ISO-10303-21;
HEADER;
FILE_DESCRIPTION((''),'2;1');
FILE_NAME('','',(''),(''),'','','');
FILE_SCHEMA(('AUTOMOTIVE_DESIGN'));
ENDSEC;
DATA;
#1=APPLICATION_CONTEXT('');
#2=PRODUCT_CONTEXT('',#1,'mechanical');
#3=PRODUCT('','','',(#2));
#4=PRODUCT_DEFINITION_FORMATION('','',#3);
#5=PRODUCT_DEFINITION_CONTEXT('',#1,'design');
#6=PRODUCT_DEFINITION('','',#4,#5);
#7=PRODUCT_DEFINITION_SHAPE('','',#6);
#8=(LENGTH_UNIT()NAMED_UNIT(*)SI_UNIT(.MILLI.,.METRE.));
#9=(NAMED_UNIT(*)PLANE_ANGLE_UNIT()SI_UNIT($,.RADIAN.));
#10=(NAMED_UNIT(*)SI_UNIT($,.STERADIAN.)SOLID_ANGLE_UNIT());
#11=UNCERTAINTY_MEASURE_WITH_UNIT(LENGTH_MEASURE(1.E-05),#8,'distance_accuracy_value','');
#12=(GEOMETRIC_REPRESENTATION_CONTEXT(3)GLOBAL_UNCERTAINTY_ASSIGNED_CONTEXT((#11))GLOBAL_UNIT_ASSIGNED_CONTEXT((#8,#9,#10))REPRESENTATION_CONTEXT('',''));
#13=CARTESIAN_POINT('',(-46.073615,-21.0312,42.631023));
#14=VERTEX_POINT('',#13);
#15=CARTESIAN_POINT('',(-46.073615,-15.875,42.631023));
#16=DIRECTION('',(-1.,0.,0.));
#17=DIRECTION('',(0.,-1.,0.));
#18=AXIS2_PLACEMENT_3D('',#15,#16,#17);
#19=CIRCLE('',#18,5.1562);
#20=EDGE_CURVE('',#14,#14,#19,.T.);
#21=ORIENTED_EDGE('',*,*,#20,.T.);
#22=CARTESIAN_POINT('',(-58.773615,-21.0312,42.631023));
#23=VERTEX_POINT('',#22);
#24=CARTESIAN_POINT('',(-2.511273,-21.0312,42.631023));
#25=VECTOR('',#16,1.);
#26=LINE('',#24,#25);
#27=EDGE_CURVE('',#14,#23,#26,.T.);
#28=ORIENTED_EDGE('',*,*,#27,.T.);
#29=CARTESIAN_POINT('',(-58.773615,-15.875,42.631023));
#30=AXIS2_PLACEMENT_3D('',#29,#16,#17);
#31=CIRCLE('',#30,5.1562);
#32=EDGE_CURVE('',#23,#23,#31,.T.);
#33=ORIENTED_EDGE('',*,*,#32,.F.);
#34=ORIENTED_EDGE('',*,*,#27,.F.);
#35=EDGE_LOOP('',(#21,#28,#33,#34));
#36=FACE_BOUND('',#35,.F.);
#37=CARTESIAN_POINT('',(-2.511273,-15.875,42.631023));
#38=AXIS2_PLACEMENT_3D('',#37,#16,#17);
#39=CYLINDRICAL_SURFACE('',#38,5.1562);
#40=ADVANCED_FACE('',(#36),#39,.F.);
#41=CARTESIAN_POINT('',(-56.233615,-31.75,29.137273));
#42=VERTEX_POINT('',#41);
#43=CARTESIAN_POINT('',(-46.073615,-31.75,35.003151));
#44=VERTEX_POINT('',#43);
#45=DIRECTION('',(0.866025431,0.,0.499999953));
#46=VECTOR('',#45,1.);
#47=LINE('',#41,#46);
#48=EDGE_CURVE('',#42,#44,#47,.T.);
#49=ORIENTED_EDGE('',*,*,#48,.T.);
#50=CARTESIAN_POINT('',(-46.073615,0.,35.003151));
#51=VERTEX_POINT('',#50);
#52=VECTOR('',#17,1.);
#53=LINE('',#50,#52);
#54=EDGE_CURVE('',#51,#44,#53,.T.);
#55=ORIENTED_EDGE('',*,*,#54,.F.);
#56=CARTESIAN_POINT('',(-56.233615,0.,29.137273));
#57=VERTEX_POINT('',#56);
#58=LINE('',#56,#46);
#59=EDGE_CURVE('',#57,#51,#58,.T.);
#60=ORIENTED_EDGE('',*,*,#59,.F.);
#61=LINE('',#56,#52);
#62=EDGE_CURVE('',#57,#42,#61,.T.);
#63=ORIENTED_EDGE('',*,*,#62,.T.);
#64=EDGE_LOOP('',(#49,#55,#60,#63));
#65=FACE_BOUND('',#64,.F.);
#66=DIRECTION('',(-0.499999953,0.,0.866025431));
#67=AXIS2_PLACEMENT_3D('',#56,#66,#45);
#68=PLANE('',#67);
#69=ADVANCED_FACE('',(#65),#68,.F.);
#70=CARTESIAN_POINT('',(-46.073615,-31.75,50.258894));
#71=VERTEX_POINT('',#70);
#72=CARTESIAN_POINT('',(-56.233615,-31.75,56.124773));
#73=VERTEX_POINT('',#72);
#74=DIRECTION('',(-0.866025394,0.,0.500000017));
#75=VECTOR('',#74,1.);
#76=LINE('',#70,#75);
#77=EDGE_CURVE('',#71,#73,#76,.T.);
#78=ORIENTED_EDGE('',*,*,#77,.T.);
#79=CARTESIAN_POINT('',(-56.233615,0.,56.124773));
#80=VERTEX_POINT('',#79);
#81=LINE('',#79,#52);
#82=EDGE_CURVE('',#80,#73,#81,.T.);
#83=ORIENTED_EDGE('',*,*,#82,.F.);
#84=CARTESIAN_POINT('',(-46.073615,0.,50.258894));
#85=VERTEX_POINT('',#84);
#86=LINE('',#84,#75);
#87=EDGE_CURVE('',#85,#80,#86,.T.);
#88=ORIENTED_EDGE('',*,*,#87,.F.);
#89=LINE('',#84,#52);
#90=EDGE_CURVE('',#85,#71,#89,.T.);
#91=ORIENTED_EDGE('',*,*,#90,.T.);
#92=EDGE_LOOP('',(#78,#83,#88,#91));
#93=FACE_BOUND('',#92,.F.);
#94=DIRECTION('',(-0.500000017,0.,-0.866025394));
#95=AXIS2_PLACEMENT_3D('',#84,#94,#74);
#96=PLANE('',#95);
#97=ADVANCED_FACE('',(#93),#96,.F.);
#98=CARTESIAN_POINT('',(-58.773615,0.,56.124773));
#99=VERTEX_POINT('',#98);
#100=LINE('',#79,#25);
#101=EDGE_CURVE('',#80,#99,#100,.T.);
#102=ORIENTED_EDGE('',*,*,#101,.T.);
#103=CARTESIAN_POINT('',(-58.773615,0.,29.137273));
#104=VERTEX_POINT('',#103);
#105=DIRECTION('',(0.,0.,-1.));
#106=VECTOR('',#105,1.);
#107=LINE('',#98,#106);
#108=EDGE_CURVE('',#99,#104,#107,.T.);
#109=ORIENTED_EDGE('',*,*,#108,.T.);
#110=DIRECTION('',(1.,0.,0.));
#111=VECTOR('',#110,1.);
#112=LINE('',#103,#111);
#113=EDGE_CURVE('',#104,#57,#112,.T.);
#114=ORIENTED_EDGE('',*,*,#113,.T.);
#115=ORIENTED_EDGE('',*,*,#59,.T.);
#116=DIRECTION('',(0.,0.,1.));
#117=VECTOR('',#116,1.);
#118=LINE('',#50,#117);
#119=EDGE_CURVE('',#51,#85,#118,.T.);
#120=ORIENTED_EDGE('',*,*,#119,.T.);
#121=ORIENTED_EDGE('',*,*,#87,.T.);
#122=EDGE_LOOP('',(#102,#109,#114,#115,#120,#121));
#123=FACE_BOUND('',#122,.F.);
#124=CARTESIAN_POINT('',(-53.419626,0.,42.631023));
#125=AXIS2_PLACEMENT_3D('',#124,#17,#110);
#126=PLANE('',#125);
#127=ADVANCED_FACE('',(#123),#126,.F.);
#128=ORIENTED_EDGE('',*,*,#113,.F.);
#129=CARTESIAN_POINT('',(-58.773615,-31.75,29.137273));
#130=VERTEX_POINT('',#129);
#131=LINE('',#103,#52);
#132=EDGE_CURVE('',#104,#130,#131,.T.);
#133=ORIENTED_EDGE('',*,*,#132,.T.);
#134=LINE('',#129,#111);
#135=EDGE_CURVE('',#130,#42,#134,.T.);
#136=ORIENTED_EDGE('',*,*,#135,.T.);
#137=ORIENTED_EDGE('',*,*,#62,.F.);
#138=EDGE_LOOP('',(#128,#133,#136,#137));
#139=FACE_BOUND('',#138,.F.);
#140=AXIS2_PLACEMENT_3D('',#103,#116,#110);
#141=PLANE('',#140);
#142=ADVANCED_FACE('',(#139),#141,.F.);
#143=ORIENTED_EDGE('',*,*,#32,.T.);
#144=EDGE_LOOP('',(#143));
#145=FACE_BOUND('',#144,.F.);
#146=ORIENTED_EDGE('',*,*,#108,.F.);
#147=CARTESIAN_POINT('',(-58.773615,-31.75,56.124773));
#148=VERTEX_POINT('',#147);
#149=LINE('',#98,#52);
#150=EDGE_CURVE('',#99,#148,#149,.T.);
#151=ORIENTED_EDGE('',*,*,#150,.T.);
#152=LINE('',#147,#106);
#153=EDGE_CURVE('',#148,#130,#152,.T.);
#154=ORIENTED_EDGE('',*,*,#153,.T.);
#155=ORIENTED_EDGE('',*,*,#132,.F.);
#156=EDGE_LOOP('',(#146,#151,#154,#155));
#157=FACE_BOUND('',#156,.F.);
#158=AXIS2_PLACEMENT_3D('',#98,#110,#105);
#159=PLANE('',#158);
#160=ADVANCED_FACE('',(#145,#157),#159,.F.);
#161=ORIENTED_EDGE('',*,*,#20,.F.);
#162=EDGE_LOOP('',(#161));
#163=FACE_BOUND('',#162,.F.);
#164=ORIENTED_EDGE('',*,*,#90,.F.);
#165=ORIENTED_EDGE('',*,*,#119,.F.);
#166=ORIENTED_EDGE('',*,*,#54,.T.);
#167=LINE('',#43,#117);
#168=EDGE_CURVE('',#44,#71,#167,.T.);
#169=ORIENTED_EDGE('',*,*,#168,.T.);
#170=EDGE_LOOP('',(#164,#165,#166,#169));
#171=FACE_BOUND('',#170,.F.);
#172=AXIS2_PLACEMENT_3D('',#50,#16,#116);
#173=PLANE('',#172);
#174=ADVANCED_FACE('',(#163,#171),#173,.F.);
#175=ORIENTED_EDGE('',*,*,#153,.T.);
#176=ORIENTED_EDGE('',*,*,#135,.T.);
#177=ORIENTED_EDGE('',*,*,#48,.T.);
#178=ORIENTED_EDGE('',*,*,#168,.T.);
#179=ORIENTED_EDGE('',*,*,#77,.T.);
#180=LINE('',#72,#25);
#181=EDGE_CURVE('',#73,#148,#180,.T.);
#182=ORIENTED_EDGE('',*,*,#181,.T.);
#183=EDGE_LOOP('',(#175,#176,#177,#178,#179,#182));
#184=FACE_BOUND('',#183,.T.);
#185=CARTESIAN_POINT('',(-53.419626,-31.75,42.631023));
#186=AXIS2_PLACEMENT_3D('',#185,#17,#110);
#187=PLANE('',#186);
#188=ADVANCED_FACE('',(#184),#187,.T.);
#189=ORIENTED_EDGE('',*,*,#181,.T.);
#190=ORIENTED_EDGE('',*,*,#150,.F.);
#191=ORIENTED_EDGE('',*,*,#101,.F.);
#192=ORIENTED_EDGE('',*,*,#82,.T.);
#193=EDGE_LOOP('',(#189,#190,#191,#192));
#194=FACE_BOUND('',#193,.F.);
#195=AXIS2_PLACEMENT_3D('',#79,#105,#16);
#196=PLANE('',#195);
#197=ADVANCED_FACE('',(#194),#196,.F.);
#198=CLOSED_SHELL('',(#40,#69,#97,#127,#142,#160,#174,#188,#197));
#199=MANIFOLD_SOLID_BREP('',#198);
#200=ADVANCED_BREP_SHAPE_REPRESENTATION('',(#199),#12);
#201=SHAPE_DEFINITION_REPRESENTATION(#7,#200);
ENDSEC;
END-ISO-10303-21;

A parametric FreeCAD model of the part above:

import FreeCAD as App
import Part
import Sketcher

V = App.Vector
Q = App.Units.Quantity


def add_polygon(sketch, points):
    """Adds a closed chain of lines whose ends are joined by coincident constraints."""
    first, n = sketch.GeometryCount, len(points)
    for a, b in zip(points, points[1:] + points[:1]):
        sketch.addGeometry(Part.LineSegment(App.Vector(*a, 0), App.Vector(*b, 0)), False)
    for i in range(n):
        sketch.addConstraint(Sketcher.Constraint("Coincident", first + i, 2, first + (i + 1) % n, 1))

doc = App.newDocument("Part")
body = doc.addObject("PartDesign::Body", "Body")

# Sketch on XZ plane
sketch1 = body.newObject("Sketcher::SketchObject", "Sketch")
sketch1.AttachmentSupport = (doc.getObject("XZ_Plane"), [""])
sketch1.MapMode = "FlatFace"
add_polygon(sketch1, [(-56.2, 56.1), (-58.8, 56.1), (-58.8, 29.1), (-56.2, 29.1), (-46.1, 35), (-46.1, 50.3)])  # lines 0-5
sketch1.addConstraint([
    Sketcher.Constraint("Horizontal", 0),
    Sketcher.Constraint("Vertical", 1),
    Sketcher.Constraint("Horizontal", 2),
    Sketcher.Constraint("Vertical", 4),
    Sketcher.Constraint("Vertical", 2, 2, 5, 2),
    Sketcher.Constraint("Equal", 3, 5),
    Sketcher.Constraint("DistanceX", 0, 2, 0, 1, Q("0.1 in")),
    Sketcher.Constraint("Angle", 3, Q("29.999997 deg")),
    Sketcher.Constraint("DistanceX", 2, 2, 3, 2, Q("0.4 in")),
    Sketcher.Constraint("DistanceY", 1, 2, 1, 1, Q("1.0625 in")),
    Sketcher.Constraint("DistanceY", -1, 1, 3, 2, 35.003151),
    Sketcher.Constraint("DistanceX", 0, 2, -1, 1, 58.773615),
])
pad1 = body.newObject("PartDesign::Pad", "Pad")
pad1.Profile = sketch1
pad1.Length = Q("1.25 in")

# Sketch on YZ plane
sketch2 = body.newObject("Sketcher::SketchObject", "Sketch001")
sketch2.AttachmentSupport = (doc.getObject("YZ_Plane"), [""])
sketch2.MapMode = "FlatFace"
sketch2.AttachmentOffset = App.Placement(V(0, 0, -46.073615), App.Rotation())
sketch2.addGeometry(Part.Circle(V(-16, 43, 0), V(0, 0, 1), 5), False)
sketch2.addConstraint([
    Sketcher.Constraint("Diameter", 0, Q("0.406 in")),
    Sketcher.Constraint("DistanceX", 0, 3, -1, 1, Q("0.625 in")),
    Sketcher.Constraint("DistanceY", -1, 1, 0, 3, 42.631023),
])
doc.recompute()
hole = body.newObject("PartDesign::Hole", "Hole")
hole.Profile = sketch2
hole.ThreadType = "None"
hole.Diameter = Q("0.406 in")
hole.DepthType = "ThroughAll"

doc.recompute()
